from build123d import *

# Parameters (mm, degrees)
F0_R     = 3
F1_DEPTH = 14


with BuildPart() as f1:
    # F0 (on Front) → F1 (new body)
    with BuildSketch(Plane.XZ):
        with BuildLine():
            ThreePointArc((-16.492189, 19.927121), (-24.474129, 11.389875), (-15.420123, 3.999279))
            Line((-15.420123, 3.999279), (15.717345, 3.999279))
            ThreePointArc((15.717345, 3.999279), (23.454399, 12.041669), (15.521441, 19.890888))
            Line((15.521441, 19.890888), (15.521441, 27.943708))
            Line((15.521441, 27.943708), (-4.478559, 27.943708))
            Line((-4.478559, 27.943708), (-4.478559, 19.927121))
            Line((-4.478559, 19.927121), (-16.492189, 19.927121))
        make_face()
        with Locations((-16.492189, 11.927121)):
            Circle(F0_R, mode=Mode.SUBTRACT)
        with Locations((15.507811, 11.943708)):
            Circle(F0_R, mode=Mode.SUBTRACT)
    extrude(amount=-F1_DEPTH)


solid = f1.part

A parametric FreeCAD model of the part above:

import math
import FreeCAD as App
import Part
import Sketcher
from FreeCAD import Vector

doc = App.newDocument("Part")
params = doc.addObject("Spreadsheet::Sheet", "Params")
for row, (alias, value) in enumerate([
    ("sketch1_diameter", "6 mm"),
    ("sketch1_radius", "8 mm"),
    ("sketch1_width", "20 mm"),
    ("pad1_length", "14 mm"),
], start=1):
    params.set(f"A{row}", alias)
    params.set(f"B{row}", "=" + value)
    params.setAlias(f"B{row}", alias)

body = doc.addObject("PartDesign::Body", "Body")

# Sketch on XZ plane
sketch1 = doc.addObject("Sketcher::SketchObject", "Sketch")
body.addObject(sketch1)
sketch1.AttachmentSupport = (doc.XZ_Plane, [""])
sketch1.MapMode = "FlatFace"
sketch1.addGeometry(Part.ArcOfCircle(Part.Circle(Vector(-16.5, 11.9, 0), Vector(0, 0, 1), 8), math.radians(90), math.radians(278)), False)
sketch1.addGeometry(Part.LineSegment(Vector(-15.4, 4, 0), Vector(15.7, 4, 0)), False)
sketch1.addGeometry(Part.ArcOfCircle(Part.Circle(Vector(15.5, 11.9, 0), Vector(0, 0, 1), 7.9), math.radians(-88), math.radians(90)), False)
sketch1.addGeometry(Part.LineSegment(Vector(15.5, 19.9, 0), Vector(15.5, 27.9, 0)), False)
sketch1.addGeometry(Part.LineSegment(Vector(15.5, 27.9, 0), Vector(-4.5, 27.9, 0)), False)
sketch1.addGeometry(Part.LineSegment(Vector(-4.5, 27.9, 0), Vector(-4.5, 19.9, 0)), False)
sketch1.addGeometry(Part.LineSegment(Vector(-4.5, 19.9, 0), Vector(-16.5, 19.9, 0)), False)
sketch1.addGeometry(Part.Circle(Vector(-16.5, 11.9, 0), Vector(0, 0, 1), 3), False)
sketch1.addGeometry(Part.Circle(Vector(15.5, 11.9, 0), Vector(0, 0, 1), 3), False)
sketch1.addConstraint(Sketcher.Constraint("Coincident", 0, 2, 1, 1))
sketch1.addConstraint(Sketcher.Constraint("Coincident", 1, 2, 2, 1))
sketch1.addConstraint(Sketcher.Constraint("Coincident", 2, 2, 3, 1))
sketch1.addConstraint(Sketcher.Constraint("Coincident", 3, 2, 4, 1))
sketch1.addConstraint(Sketcher.Constraint("Coincident", 4, 2, 5, 1))
sketch1.addConstraint(Sketcher.Constraint("Coincident", 5, 2, 6, 1))
sketch1.addConstraint(Sketcher.Constraint("Tangent", 6, 2, 0, 1))
sketch1.addConstraint(Sketcher.Constraint("Horizontal", 1))
sketch1.addConstraint(Sketcher.Constraint("Vertical", 3))
sketch1.addConstraint(Sketcher.Constraint("Horizontal", 4))
sketch1.addConstraint(Sketcher.Constraint("Vertical", 5))
sketch1.addConstraint(Sketcher.Constraint("Horizontal", 6))
sketch1.addConstraint(Sketcher.Constraint("Coincident", 7, 3, 0, 3))
sketch1.addConstraint(Sketcher.Constraint("Coincident", 8, 3, 2, 3))
sketch1.addConstraint(Sketcher.Constraint("Equal", 7, 8))
sketch1.addConstraint(Sketcher.Constraint("Diameter", 7, 6.0))
sketch1.addConstraint(Sketcher.Constraint("Radius", 0, 8.0))
sketch1.addConstraint(Sketcher.Constraint("DistanceX", 4, 2, 4, 1, 20.0))
sketch1.addConstraint(Sketcher.Constraint("DistanceX", 0, 3, 2, 3, 32.0))
sketch1.addConstraint(Sketcher.Constraint("DistanceY", 8, 3, 3, 2, 16.0))
sketch1.addConstraint(Sketcher.Constraint("Radius", 2, 7.947192))
sketch1.addConstraint(Sketcher.Constraint("DistanceX", 6, 2, 6, 1, 12.01363))
sketch1.addConstraint(Sketcher.Constraint("DistanceX", 1, 1, 1, 2, 31.137468))
sketch1.addConstraint(Sketcher.Constraint("DistanceY", 5, 2, 5, 1, 8.016587))
sketch1.addConstraint(Sketcher.Constraint("DistanceX", 0, 3, -1, 1, 16.492189))
sketch1.addConstraint(Sketcher.Constraint("DistanceY", -1, 1, 0, 3, 11.927121))
sketch1.setExpression("Constraints[15]", "Params.sketch1_diameter")
sketch1.setExpression("Constraints[16]", "Params.sketch1_radius")
sketch1.setExpression("Constraints[17]", "Params.sketch1_width")
pad1 = doc.addObject("PartDesign::Pad", "Pad")
body.addObject(pad1)
pad1.Profile = sketch1
pad1.setExpression("Length", "Params.pad1_length")
pad1.Reversed = True

doc.recompute()
